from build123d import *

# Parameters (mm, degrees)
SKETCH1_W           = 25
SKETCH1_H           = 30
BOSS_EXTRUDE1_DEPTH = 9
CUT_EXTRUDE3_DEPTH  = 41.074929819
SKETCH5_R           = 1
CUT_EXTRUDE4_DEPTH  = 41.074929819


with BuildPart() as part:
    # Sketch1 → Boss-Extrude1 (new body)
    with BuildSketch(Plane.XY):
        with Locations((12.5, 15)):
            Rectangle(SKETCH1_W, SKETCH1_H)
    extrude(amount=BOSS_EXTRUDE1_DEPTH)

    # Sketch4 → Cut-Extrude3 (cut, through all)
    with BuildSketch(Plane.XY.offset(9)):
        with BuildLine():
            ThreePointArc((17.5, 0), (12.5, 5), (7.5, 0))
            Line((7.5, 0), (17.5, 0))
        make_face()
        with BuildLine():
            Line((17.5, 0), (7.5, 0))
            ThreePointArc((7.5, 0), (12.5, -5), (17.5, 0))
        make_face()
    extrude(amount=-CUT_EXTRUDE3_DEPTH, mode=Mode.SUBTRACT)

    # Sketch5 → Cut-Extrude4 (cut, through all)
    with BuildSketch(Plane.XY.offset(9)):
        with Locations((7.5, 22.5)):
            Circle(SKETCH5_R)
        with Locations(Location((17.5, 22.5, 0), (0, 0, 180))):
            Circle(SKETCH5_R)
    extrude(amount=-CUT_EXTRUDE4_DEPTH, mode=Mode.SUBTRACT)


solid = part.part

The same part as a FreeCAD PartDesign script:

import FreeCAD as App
import Part
import Sketcher

V = App.Vector


def add_polygon(sketch, points):
    """Adds a closed chain of lines whose ends are joined by coincident constraints."""
    first, n = sketch.GeometryCount, len(points)
    for a, b in zip(points, points[1:] + points[:1]):
        sketch.addGeometry(Part.LineSegment(App.Vector(*a, 0), App.Vector(*b, 0)), False)
    for i in range(n):
        sketch.addConstraint(Sketcher.Constraint("Coincident", first + i, 2, first + (i + 1) % n, 1))

doc = App.newDocument("Part")
body = doc.addObject("PartDesign::Body", "Body")

# Sketch on XY plane
sketch1 = doc.addObject("Sketcher::SketchObject", "Sketch")
body.addObject(sketch1)
sketch1.AttachmentSupport = (doc.XY_Plane, [""])
sketch1.MapMode = "FlatFace"
add_polygon(sketch1, [(0, 30), (0, 0), (25, 0), (25, 30)])  # lines 0-3
sketch1.addConstraint([
    Sketcher.Constraint("Vertical", 0),
    Sketcher.Constraint("Horizontal", 1),
    Sketcher.Constraint("Vertical", 2),
    Sketcher.Constraint("Horizontal", 3),
    Sketcher.Constraint("Coincident", 0, 2, -1, 1),
    Sketcher.Constraint("DistanceX", 1, 1, 1, 2, 25.0),
    Sketcher.Constraint("DistanceY", 0, 2, 0, 1, 30.0),
])
pad1 = doc.addObject("PartDesign::Pad", "Pad")
body.addObject(pad1)
pad1.Profile = sketch1
pad1.Length = 9

# Sketch on XY plane
sketch2 = doc.addObject("Sketcher::SketchObject", "Sketch001")
body.addObject(sketch2)
sketch2.AttachmentSupport = (doc.XY_Plane, [""])
sketch2.MapMode = "FlatFace"
sketch2.AttachmentOffset = App.Placement(V(0, 0, 9), App.Rotation())
sketch2.addGeometry(Part.Circle(V(12.5, 0, 0), V(0, 0, 1), 5), False)
sketch2.addConstraint([
    Sketcher.Constraint("PointOnObject", 0, 3, -1),
    Sketcher.Constraint("Diameter", 0, 10.0),
    Sketcher.Constraint("DistanceX", -1, 1, 0, 3, 12.5),
])
pocket1 = doc.addObject("PartDesign::Pocket", "Pocket")
body.addObject(pocket1)
pocket1.Profile = sketch2
pocket1.Type = "ThroughAll"

# Sketch on XY plane
sketch3 = doc.addObject("Sketcher::SketchObject", "Sketch002")
body.addObject(sketch3)
sketch3.AttachmentSupport = (doc.XY_Plane, [""])
sketch3.MapMode = "FlatFace"
sketch3.AttachmentOffset = App.Placement(V(0, 0, 9), App.Rotation())
sketch3.addGeometry([
    Part.Circle(V(7.5, 22.5, 0), V(0, 0, 1), 1),
    Part.Circle(V(17.5, 22.5, 0), V(0, 0, 1), 1),
], False)
sketch3.addConstraint([
    Sketcher.Constraint("Equal", 0, 1),
    Sketcher.Constraint("Horizontal", 0, 3, 1, 3),
    Sketcher.Constraint("Diameter", 0, 2.0),
    Sketcher.Constraint("DistanceX", 0, 3, 1, 3, 10.0),
    Sketcher.Constraint("DistanceX", -1, 1, 0, 3, 7.5),
    Sketcher.Constraint("DistanceY", -1, 1, 0, 3, 22.5),
])
pocket2 = doc.addObject("PartDesign::Pocket", "Pocket001")
body.addObject(pocket2)
pocket2.Profile = sketch3
pocket2.Type = "ThroughAll"

doc.recompute()
